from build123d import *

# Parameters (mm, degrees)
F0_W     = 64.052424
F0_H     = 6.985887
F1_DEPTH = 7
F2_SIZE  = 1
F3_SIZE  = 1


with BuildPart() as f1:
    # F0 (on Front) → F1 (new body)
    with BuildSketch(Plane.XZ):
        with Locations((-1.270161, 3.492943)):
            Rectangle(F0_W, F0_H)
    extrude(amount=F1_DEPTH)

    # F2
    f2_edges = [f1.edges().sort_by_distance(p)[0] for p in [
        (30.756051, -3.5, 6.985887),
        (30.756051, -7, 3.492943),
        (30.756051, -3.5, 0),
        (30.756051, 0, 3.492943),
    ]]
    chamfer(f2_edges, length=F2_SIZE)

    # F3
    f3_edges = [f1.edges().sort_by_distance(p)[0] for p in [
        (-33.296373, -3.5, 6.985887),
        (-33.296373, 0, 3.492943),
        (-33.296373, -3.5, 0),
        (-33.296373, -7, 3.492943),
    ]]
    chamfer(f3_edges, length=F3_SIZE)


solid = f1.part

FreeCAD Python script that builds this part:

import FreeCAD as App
import Part
import Sketcher
from FreeCAD import Vector
Q = App.Units.Quantity


def edges_at(feature, points):
    """Names of the edges that pass closest to the given points."""
    edges = feature.Shape.Edges
    near = lambda p: min(range(len(edges)), key=lambda i: edges[i].distToShape(Part.Vertex(*p))[0])
    return sorted({f"Edge{near(p) + 1}" for p in points})


def add_polygon(sketch, points):
    """Adds a closed chain of lines whose ends are joined by coincident constraints."""
    first, n = sketch.GeometryCount, len(points)
    for a, b in zip(points, points[1:] + points[:1]):
        sketch.addGeometry(Part.LineSegment(App.Vector(*a, 0), App.Vector(*b, 0)), False)
    for i in range(n):
        sketch.addConstraint(Sketcher.Constraint("Coincident", first + i, 2, first + (i + 1) % n, 1))

doc = App.newDocument("Part")
body = doc.addObject("PartDesign::Body", "Body")

sketch1 = doc.addObject("Sketcher::SketchObject", "Sketch")
body.addObject(sketch1)
sketch1.AttachmentSupport = (doc.XZ_Plane, [""])
sketch1.MapMode = "FlatFace"
add_polygon(sketch1, [(-33, 7), (-33, 0), (31, 0), (31, 7)])
sketch1.addConstraint([
    Sketcher.Constraint("Vertical", 0),
    Sketcher.Constraint("Horizontal", 1),
    Sketcher.Constraint("Vertical", 2),
    Sketcher.Constraint("Horizontal", 3),
    Sketcher.Constraint("PointOnObject", 0, 2, -1),
    Sketcher.Constraint("DistanceX", 1, 1, 1, 2, Q("64.052424 mm")),
    Sketcher.Constraint("DistanceY", 0, 2, 0, 1, Q("6.985887 mm")),
    Sketcher.Constraint("DistanceX", -1, 1, 1, 2, Q("30.756051 mm")),
])
pad1 = doc.addObject("PartDesign::Pad", "Pad")
body.addObject(pad1)
pad1.Profile = sketch1
pad1.Length = 7
doc.recompute()

chamfer = doc.addObject("PartDesign::Chamfer", "Chamfer")
body.addObject(chamfer)
chamfer.Base = (pad1, edges_at(pad1, [
    (30.756, -3.5, 6.986),
    (30.756, -7, 3.493),
    (30.756, -3.5, 0),
    (30.756, 0, 3.493),
]))
chamfer.Size = 1
doc.recompute()

chamfer2 = doc.addObject("PartDesign::Chamfer", "Chamfer001")
body.addObject(chamfer2)
chamfer2.Base = (chamfer, edges_at(chamfer, [
    (-33.296, -3.5, 6.986),
    (-33.296, 0, 3.493),
    (-33.296, -3.5, 0),
    (-33.296, -7, 3.493),
]))
chamfer2.Size = 1

doc.recompute()
